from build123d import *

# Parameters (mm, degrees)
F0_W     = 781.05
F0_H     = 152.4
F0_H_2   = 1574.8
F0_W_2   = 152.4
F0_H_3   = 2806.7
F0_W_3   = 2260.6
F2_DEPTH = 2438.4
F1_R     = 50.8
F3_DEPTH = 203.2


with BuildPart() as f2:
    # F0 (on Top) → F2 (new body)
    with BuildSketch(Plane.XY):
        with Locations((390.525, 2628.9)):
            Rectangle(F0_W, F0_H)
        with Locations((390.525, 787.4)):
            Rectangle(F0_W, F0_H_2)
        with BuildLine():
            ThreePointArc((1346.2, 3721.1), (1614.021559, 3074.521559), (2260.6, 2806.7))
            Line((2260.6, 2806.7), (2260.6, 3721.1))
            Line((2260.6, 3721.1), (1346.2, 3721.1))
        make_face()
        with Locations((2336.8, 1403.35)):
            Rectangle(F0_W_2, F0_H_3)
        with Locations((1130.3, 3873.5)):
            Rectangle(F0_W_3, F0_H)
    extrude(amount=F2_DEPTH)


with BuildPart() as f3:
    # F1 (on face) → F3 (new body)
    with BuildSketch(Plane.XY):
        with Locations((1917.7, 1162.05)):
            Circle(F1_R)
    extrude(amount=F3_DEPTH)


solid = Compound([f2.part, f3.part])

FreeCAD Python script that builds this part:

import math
import FreeCAD as App
import Part
import Sketcher
Q = App.Units.Quantity


def add_polygon(sketch, points):
    """Adds a closed chain of lines whose ends are joined by coincident constraints."""
    first, n = sketch.GeometryCount, len(points)
    for a, b in zip(points, points[1:] + points[:1]):
        sketch.addGeometry(Part.LineSegment(App.Vector(*a, 0), App.Vector(*b, 0)), False)
    for i in range(n):
        sketch.addConstraint(Sketcher.Constraint("Coincident", first + i, 2, first + (i + 1) % n, 1))

doc = App.newDocument("Part")
body = doc.addObject("PartDesign::Body", "Body")
body.AllowCompound = True

# Sketch on XY plane
sketch1 = doc.addObject("Sketcher::SketchObject", "Sketch")
body.addObject(sketch1)
sketch1.AttachmentSupport = (doc.XY_Plane, [""])
sketch1.MapMode = "FlatFace"
add_polygon(sketch1, [(0, 2705.1), (0, 2552.7), (781.05, 2552.7), (781.05, 2705.1)])  # lines 0-3
add_polygon(sketch1, [(0, 1574.8), (0, 0), (781.05, 0), (781.05, 1574.8)])  # lines 4-7
sketch1.addGeometry(Part.ArcOfCircle(Part.Circle(App.Vector(2260.599999, 3721.099999, 0), App.Vector(0, 0, 1), 914.399999), math.radians(180), math.radians(270)), False)  # 8
sketch1.addGeometry(Part.LineSegment(App.Vector(2260.6, 2806.7, 0), App.Vector(2260.6, 3721.1, 0)), False)  # 9
sketch1.addGeometry(Part.LineSegment(App.Vector(2260.6, 3721.1, 0), App.Vector(1346.2, 3721.1, 0)), False)  # 10
add_polygon(sketch1, [(2260.6, 2806.7), (2260.6, 0), (2413, 0), (2413, 2806.7)])  # lines 11-14
add_polygon(sketch1, [(0, 3949.7), (0, 3797.3), (2260.6, 3797.3), (2260.6, 3949.7)])  # lines 15-18
sketch1.addConstraint(Sketcher.Constraint("Coincident", 8, 2, 9, 1))
sketch1.addConstraint(Sketcher.Constraint("Coincident", 9, 2, 10, 1))
sketch1.addConstraint(Sketcher.Constraint("Coincident", 10, 2, 8, 1))
sketch1.addConstraint(Sketcher.Constraint("Vertical", 0))
sketch1.addConstraint(Sketcher.Constraint("Horizontal", 1))
sketch1.addConstraint(Sketcher.Constraint("Vertical", 2))
sketch1.addConstraint(Sketcher.Constraint("Horizontal", 3))
sketch1.addConstraint(Sketcher.Constraint("Vertical", 4))
sketch1.addConstraint(Sketcher.Constraint("Horizontal", 5))
sketch1.addConstraint(Sketcher.Constraint("Vertical", 6))
sketch1.addConstraint(Sketcher.Constraint("Horizontal", 7))
sketch1.addConstraint(Sketcher.Constraint("Vertical", 9))
sketch1.addConstraint(Sketcher.Constraint("Horizontal", 10))
sketch1.addConstraint(Sketcher.Constraint("Vertical", 11))
sketch1.addConstraint(Sketcher.Constraint("Horizontal", 12))
sketch1.addConstraint(Sketcher.Constraint("Vertical", 13))
sketch1.addConstraint(Sketcher.Constraint("Horizontal", 14))
sketch1.addConstraint(Sketcher.Constraint("Vertical", 15))
sketch1.addConstraint(Sketcher.Constraint("Horizontal", 16))
sketch1.addConstraint(Sketcher.Constraint("Vertical", 17))
sketch1.addConstraint(Sketcher.Constraint("Horizontal", 18))
sketch1.addConstraint(Sketcher.Constraint("Coincident", 4, 2, -1, 1))
sketch1.addConstraint(Sketcher.Constraint("Coincident", 9, 2, 8, 3))
sketch1.addConstraint(Sketcher.Constraint("PointOnObject", 0, 2, -2))
sketch1.addConstraint(Sketcher.Constraint("PointOnObject", 11, 2, -1))
sketch1.addConstraint(Sketcher.Constraint("PointOnObject", 15, 2, -2))
sketch1.addConstraint(Sketcher.Constraint("Horizontal", 8, 2, 13, 2))
sketch1.addConstraint(Sketcher.Constraint("Vertical", 2, 2, 5, 2))
sketch1.addConstraint(Sketcher.Constraint("Vertical", 9, 2, 11, 2))
sketch1.addConstraint(Sketcher.Constraint("Vertical", 14, 2, 16, 2))
sketch1.addConstraint(Sketcher.Constraint("Equal", 14, 0))
sketch1.addConstraint(Sketcher.Constraint("Equal", 2, 15))
sketch1.addConstraint(Sketcher.Constraint("Radius", 8, Q("36 in")))
sketch1.addConstraint(Sketcher.Constraint("DistanceX", 12, 1, 12, 2, Q("6 in")))
sketch1.addConstraint(Sketcher.Constraint("DistanceX", 16, 1, 16, 2, Q("89 in")))
sketch1.addConstraint(Sketcher.Constraint("DistanceY", 4, 2, 4, 1, Q("62 in")))
sketch1.addConstraint(Sketcher.Constraint("DistanceY", 11, 2, 11, 1, Q("110.5 in")))
sketch1.addConstraint(Sketcher.Constraint("DistanceY", 0, 2, 8, 3, Q("46 in")))
sketch1.addConstraint(Sketcher.Constraint("DistanceY", 3, 2, 15, 2, Q("43 in")))
sketch1.addConstraint(Sketcher.Constraint("DistanceX", 1, 1, 1, 2, Q("30.75 in")))
pad1 = doc.addObject("PartDesign::Pad", "Pad")
body.addObject(pad1)
pad1.Profile = sketch1
pad1.Length = Q("96 in")
body2 = doc.addObject("PartDesign::Body", "Body001")

# Sketch on XY plane
sketch2 = doc.addObject("Sketcher::SketchObject", "Sketch001")
body2.addObject(sketch2)
sketch2.AttachmentSupport = (doc.getObject("XY_Plane001"), [""])
sketch2.MapMode = "FlatFace"
sketch2.addGeometry(Part.Circle(App.Vector(1917.7, 1162.05, 0), App.Vector(0, 0, 1), 50.8), False)
sketch2.addConstraint(Sketcher.Constraint("Diameter", 0, Q("4 in")))
sketch2.addConstraint(Sketcher.Constraint("DistanceX", -1, 1, 0, 3, Q("75.5 in")))
sketch2.addConstraint(Sketcher.Constraint("DistanceY", -1, 1, 0, 3, Q("45.75 in")))
pad2 = doc.addObject("PartDesign::Pad", "Pad001")
body2.addObject(pad2)
pad2.Profile = sketch2
pad2.Length = Q("8 in")

doc.recompute()
